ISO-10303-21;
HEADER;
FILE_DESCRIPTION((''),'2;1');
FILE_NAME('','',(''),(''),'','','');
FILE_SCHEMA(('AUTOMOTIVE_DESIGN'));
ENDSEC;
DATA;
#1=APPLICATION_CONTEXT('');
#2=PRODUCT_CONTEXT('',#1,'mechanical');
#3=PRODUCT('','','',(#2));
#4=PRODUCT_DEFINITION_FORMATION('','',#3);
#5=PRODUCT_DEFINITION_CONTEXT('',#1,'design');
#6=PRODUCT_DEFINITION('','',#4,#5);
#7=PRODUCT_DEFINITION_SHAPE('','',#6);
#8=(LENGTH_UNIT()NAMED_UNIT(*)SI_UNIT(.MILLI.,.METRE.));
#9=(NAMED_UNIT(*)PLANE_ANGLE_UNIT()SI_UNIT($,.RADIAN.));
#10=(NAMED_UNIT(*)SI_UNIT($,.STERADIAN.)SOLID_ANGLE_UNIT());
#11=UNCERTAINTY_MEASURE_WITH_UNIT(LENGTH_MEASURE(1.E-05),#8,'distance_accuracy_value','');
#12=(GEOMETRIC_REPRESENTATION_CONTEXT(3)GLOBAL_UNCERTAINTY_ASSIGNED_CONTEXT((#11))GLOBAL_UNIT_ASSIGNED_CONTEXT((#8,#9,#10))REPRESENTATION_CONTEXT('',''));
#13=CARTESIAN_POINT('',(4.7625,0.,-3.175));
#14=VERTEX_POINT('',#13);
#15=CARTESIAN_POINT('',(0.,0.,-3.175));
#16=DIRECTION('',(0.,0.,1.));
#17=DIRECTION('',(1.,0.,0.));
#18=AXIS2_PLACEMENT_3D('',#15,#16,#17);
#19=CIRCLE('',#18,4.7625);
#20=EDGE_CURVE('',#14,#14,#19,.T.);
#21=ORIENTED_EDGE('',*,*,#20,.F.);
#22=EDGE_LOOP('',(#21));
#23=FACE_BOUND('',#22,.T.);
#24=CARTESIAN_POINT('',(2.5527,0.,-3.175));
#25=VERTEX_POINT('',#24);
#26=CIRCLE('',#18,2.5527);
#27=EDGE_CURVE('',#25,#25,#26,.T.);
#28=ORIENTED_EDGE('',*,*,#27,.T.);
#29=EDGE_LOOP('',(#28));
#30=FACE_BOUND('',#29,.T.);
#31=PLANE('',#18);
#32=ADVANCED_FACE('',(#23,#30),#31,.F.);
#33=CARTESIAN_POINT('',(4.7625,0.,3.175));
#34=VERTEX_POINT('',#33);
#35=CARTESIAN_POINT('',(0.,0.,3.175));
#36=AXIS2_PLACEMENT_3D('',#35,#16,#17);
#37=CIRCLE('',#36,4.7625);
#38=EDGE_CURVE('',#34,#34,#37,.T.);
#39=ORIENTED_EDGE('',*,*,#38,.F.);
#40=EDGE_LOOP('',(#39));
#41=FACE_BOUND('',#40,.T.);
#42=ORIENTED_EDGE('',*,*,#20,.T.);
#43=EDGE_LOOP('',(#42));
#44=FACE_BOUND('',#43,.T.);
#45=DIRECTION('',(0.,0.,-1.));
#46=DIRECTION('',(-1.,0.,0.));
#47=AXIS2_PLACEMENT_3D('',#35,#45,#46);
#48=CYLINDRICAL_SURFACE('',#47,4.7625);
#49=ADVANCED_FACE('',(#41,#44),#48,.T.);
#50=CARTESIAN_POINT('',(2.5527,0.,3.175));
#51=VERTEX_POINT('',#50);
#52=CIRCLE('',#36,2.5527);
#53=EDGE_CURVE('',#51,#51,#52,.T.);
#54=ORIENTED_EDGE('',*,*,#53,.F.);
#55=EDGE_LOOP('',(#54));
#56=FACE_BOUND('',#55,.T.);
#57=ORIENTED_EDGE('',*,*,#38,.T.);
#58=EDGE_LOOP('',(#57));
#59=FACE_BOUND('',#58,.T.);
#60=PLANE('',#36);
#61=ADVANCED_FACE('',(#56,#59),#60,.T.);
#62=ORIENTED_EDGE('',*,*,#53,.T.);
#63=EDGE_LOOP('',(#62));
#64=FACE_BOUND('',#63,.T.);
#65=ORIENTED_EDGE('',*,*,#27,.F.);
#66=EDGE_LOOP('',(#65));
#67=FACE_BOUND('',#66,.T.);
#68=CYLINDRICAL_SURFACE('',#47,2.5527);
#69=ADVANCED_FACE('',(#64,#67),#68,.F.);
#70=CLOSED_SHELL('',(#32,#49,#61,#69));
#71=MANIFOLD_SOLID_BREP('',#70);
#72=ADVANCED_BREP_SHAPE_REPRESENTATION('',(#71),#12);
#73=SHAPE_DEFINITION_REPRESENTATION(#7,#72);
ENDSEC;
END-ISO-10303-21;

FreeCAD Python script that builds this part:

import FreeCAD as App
import Part
import Sketcher
from FreeCAD import Vector
Q = App.Units.Quantity

doc = App.newDocument("Part")
params = doc.addObject("Spreadsheet::Sheet", "Params")
for row, (alias, value) in enumerate([
    ("sketch1_diameter", "0.375 in"),
    ("sketch1_diameter2", "0.201 in"),
    ("pad1_length", "0.25 in"),
], start=1):
    params.set(f"A{row}", alias)
    params.set(f"B{row}", "=" + value)
    params.setAlias(f"B{row}", alias)

body = doc.addObject("PartDesign::Body", "Body")

sketch1 = doc.addObject("Sketcher::SketchObject", "Sketch")
body.addObject(sketch1)
sketch1.AttachmentSupport = (doc.XY_Plane, [""])
sketch1.MapMode = "FlatFace"
sketch1.addGeometry([
    Part.Circle(Vector(0, 0, 0), Vector(0, 0, 1), 4.7625),
    Part.Circle(Vector(0, 0, 0), Vector(0, 0, 1), 2.5527),
], False)
sketch1.addConstraint([
    Sketcher.Constraint("Coincident", 0, 3, -1, 1),
    Sketcher.Constraint("Coincident", 1, 3, -1, 1),
    Sketcher.Constraint("Diameter", 0, Q("0.375 in")),
    Sketcher.Constraint("Diameter", 1, Q("0.201 in")),
])
sketch1.setExpression("Constraints[2]", "Params.sketch1_diameter")
sketch1.setExpression("Constraints[3]", "Params.sketch1_diameter2")
pad1 = doc.addObject("PartDesign::Pad", "Pad")
body.addObject(pad1)
pad1.Profile = sketch1
pad1.setExpression("Length", "Params.pad1_length")
pad1.Midplane = True

doc.recompute()
